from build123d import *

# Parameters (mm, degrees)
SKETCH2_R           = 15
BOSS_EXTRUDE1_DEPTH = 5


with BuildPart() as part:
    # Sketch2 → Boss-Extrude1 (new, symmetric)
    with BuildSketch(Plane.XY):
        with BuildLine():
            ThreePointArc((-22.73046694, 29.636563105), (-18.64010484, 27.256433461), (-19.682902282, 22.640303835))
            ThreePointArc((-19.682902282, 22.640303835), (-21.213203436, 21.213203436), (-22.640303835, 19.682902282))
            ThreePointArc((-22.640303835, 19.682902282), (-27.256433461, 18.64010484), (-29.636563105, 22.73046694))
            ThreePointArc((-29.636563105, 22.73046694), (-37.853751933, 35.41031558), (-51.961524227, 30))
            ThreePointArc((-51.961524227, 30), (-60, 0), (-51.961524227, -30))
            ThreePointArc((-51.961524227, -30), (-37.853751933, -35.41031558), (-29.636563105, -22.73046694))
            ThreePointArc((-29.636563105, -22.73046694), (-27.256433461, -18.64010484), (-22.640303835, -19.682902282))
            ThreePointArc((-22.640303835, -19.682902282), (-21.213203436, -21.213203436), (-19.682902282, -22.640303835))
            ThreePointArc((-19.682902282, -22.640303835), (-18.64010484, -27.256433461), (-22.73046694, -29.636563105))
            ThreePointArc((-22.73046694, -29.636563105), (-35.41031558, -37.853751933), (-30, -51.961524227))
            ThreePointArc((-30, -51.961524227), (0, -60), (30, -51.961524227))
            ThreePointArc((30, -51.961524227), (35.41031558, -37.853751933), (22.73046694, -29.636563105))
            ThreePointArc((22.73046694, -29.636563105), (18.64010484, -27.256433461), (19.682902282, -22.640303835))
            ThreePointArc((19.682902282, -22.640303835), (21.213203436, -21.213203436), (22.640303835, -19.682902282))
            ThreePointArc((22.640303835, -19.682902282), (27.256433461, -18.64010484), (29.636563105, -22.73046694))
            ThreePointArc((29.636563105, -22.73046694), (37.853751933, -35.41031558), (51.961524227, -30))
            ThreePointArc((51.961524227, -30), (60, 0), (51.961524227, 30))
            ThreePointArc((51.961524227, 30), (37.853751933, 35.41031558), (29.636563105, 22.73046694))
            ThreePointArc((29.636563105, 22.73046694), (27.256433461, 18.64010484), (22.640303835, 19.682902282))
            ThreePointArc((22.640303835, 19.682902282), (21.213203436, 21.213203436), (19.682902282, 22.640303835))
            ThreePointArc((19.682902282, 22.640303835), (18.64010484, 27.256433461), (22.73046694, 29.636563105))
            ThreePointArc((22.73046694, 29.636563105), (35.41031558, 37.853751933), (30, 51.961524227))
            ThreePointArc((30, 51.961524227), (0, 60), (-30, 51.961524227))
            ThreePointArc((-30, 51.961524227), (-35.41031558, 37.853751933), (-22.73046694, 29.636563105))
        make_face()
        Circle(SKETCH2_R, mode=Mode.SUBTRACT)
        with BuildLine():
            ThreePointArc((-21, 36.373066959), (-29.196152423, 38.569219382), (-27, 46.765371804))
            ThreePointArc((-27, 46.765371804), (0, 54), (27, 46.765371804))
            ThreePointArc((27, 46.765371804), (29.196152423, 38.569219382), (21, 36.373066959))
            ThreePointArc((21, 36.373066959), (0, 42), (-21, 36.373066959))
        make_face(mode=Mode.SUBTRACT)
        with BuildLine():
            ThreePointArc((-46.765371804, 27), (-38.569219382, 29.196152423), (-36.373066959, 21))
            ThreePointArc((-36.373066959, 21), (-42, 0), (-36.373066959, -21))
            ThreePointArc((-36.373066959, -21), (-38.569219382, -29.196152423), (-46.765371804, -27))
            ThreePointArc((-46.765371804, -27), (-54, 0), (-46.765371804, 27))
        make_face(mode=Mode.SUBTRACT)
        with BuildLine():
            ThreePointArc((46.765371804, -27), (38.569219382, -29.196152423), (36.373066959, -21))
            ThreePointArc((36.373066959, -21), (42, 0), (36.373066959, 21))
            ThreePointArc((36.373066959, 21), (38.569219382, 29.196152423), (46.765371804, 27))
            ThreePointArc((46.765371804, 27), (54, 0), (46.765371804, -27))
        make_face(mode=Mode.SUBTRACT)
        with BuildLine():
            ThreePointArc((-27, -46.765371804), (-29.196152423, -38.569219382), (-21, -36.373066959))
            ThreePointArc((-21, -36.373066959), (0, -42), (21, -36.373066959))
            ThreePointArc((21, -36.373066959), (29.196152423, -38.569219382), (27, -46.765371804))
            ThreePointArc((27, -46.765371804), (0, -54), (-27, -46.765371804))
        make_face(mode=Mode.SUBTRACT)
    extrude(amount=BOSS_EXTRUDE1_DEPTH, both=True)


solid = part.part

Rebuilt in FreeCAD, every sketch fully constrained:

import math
import FreeCAD as App
import Part
import Sketcher

doc = App.newDocument("Part")
body = doc.addObject("PartDesign::Body", "Body")

# Sketch on XY plane
sketch1 = body.newObject("Sketcher::SketchObject", "Sketch")
sketch1.AttachmentSupport = (doc.getObject("XY_Plane"), [""])
sketch1.MapMode = "FlatFace"
sketch1.addGeometry(Part.ArcOfCircle(Part.Circle(App.Vector(-22.307289, 25.659011, 0), App.Vector(0, 0, 1), 4), math.radians(-48.997137), math.radians(96.072939)), False)
sketch1.addGeometry(Part.ArcOfCircle(Part.Circle(App.Vector(0, 0, 0), App.Vector(0, 0, 1), 30), math.radians(131.002863), math.radians(138.997137)), False)
sketch1.addGeometry(Part.ArcOfCircle(Part.Circle(App.Vector(-25.659011, 22.307289, 0), App.Vector(0, 0, 1), 4), math.radians(173.927061), math.radians(318.997137)), False)
sketch1.addGeometry(Part.ArcOfCircle(Part.Circle(App.Vector(-41.569219, 24, 0), App.Vector(0, 0, 1), 12), math.radians(-6.072939), math.radians(150)), False)
sketch1.addGeometry(Part.ArcOfCircle(Part.Circle(App.Vector(0, 0, 0), App.Vector(0, 0, 1), 60), math.radians(150), math.radians(210)), False)
sketch1.addGeometry(Part.ArcOfCircle(Part.Circle(App.Vector(-41.569219, -24, 0), App.Vector(0, 0, 1), 12), math.radians(-150), math.radians(6.072939)), False)
sketch1.addGeometry(Part.ArcOfCircle(Part.Circle(App.Vector(-25.659011, -22.307289, 0), App.Vector(0, 0, 1), 4), math.radians(41.002863), math.radians(186.072939)), False)
sketch1.addGeometry(Part.ArcOfCircle(Part.Circle(App.Vector(0, 0, 0), App.Vector(0, 0, 1), 30), math.radians(-138.997137), math.radians(-131.002863)), False)
sketch1.addGeometry(Part.ArcOfCircle(Part.Circle(App.Vector(-22.307289, -25.659011, 0), App.Vector(0, 0, 1), 4), math.radians(-96.072939), math.radians(48.997137)), False)
sketch1.addGeometry(Part.ArcOfCircle(Part.Circle(App.Vector(-24, -41.569219, 0), App.Vector(0, 0, 1), 12), math.radians(83.927061), math.radians(240)), False)
sketch1.addGeometry(Part.ArcOfCircle(Part.Circle(App.Vector(0, 0, 0), App.Vector(0, 0, 1), 60), math.radians(-120), math.radians(-60)), False)
sketch1.addGeometry(Part.ArcOfCircle(Part.Circle(App.Vector(24, -41.569219, 0), App.Vector(0, 0, 1), 12), math.radians(-60), math.radians(96.072939)), False)
sketch1.addGeometry(Part.ArcOfCircle(Part.Circle(App.Vector(22.307289, -25.659011, 0), App.Vector(0, 0, 1), 4), math.radians(131.002863), math.radians(276.072939)), False)
sketch1.addGeometry(Part.ArcOfCircle(Part.Circle(App.Vector(0, 0, 0), App.Vector(0, 0, 1), 30), math.radians(-48.997137), math.radians(-41.002863)), False)
sketch1.addGeometry(Part.ArcOfCircle(Part.Circle(App.Vector(25.659011, -22.307289, 0), App.Vector(0, 0, 1), 4), math.radians(-6.072939), math.radians(138.997137)), False)
sketch1.addGeometry(Part.ArcOfCircle(Part.Circle(App.Vector(41.569219, -24, 0), App.Vector(0, 0, 1), 12), math.radians(173.927061), math.radians(330)), False)
sketch1.addGeometry(Part.ArcOfCircle(Part.Circle(App.Vector(0, 0, 0), App.Vector(0, 0, 1), 60), math.radians(-30), math.radians(30)), False)
sketch1.addGeometry(Part.ArcOfCircle(Part.Circle(App.Vector(41.569219, 24, 0), App.Vector(0, 0, 1), 12), math.radians(30), math.radians(186.072939)), False)
sketch1.addGeometry(Part.ArcOfCircle(Part.Circle(App.Vector(25.659011, 22.307289, 0), App.Vector(0, 0, 1), 4), math.radians(-138.997137), math.radians(6.072939)), False)
sketch1.addGeometry(Part.ArcOfCircle(Part.Circle(App.Vector(0, 0, 0), App.Vector(0, 0, 1), 30), math.radians(41.002863), math.radians(48.997137)), False)
sketch1.addGeometry(Part.ArcOfCircle(Part.Circle(App.Vector(22.307289, 25.659011, 0), App.Vector(0, 0, 1), 4), math.radians(83.927061), math.radians(228.997137)), False)
sketch1.addGeometry(Part.ArcOfCircle(Part.Circle(App.Vector(24, 41.569219, 0), App.Vector(0, 0, 1), 12), math.radians(-96.072939), math.radians(60)), False)
sketch1.addGeometry(Part.ArcOfCircle(Part.Circle(App.Vector(0, 0, 0), App.Vector(0, 0, 1), 60), math.radians(60), math.radians(120)), False)
sketch1.addGeometry(Part.ArcOfCircle(Part.Circle(App.Vector(-24, 41.569219, 0), App.Vector(0, 0, 1), 12), math.radians(120), math.radians(276.072939)), False)
sketch1.addGeometry(Part.ArcOfCircle(Part.Circle(App.Vector(0, 0, 0), App.Vector(0, 0, 1), 54), math.radians(-120), math.radians(-60)), False)
sketch1.addGeometry(Part.ArcOfCircle(Part.Circle(App.Vector(-24, -41.569219, 0), App.Vector(0, 0, 1), 6), math.radians(60), math.radians(240)), False)
sketch1.addGeometry(Part.ArcOfCircle(Part.Circle(App.Vector(0, 0, 0), App.Vector(0, 0, 1), 42), math.radians(-120), math.radians(-60)), False)
sketch1.addGeometry(Part.ArcOfCircle(Part.Circle(App.Vector(24, -41.569219, 0), App.Vector(0, 0, 1), 6), math.radians(-60), math.radians(120)), False)
sketch1.addGeometry(Part.ArcOfCircle(Part.Circle(App.Vector(0, 0, 0), App.Vector(0, 0, 1), 54), math.radians(150), math.radians(210)), False)
sketch1.addGeometry(Part.ArcOfCircle(Part.Circle(App.Vector(-41.569219, 24, 0), App.Vector(0, 0, 1), 6), math.radians(-30), math.radians(150)), False)
sketch1.addGeometry(Part.ArcOfCircle(Part.Circle(App.Vector(0, 0, 0), App.Vector(0, 0, 1), 42), math.radians(150), math.radians(210)), False)
sketch1.addGeometry(Part.ArcOfCircle(Part.Circle(App.Vector(-41.569219, -24, 0), App.Vector(0, 0, 1), 6), math.radians(-150), math.radians(30)), False)
sketch1.addGeometry(Part.Circle(App.Vector(0, 0, 0), App.Vector(0, 0, 1), 15), False)
sketch1.addGeometry(Part.ArcOfCircle(Part.Circle(App.Vector(0, 0, 0), App.Vector(0, 0, 1), 54), math.radians(-30), math.radians(30)), False)
sketch1.addGeometry(Part.ArcOfCircle(Part.Circle(App.Vector(41.569219, -24, 0), App.Vector(0, 0, 1), 6), math.radians(150), math.radians(330)), False)
sketch1.addGeometry(Part.ArcOfCircle(Part.Circle(App.Vector(0, 0, 0), App.Vector(0, 0, 1), 42), math.radians(-30), math.radians(30)), False)
sketch1.addGeometry(Part.ArcOfCircle(Part.Circle(App.Vector(41.569219, 24, 0), App.Vector(0, 0, 1), 6), math.radians(30), math.radians(210)), False)
sketch1.addGeometry(Part.ArcOfCircle(Part.Circle(App.Vector(0, 0, 0), App.Vector(0, 0, 1), 42), math.radians(60), math.radians(120)), False)
sketch1.addGeometry(Part.ArcOfCircle(Part.Circle(App.Vector(-24, 41.569219, 0), App.Vector(0, 0, 1), 6), math.radians(120), math.radians(300)), False)
sketch1.addGeometry(Part.ArcOfCircle(Part.Circle(App.Vector(0, 0, 0), App.Vector(0, 0, 1), 54), math.radians(60), math.radians(120)), False)
sketch1.addGeometry(Part.ArcOfCircle(Part.Circle(App.Vector(24, 41.569219, 0), App.Vector(0, 0, 1), 6), math.radians(-120), math.radians(60)), False)
sketch1.addConstraint(Sketcher.Constraint("Tangent", 0, 1, 1, 1))
sketch1.addConstraint(Sketcher.Constraint("Tangent", 1, 2, 2, 2))
sketch1.addConstraint(Sketcher.Constraint("Tangent", 2, 1, 3, 1))
sketch1.addConstraint(Sketcher.Constraint("Tangent", 3, 2, 4, 1))
sketch1.addConstraint(Sketcher.Constraint("Tangent", 4, 2, 5, 1))
sketch1.addConstraint(Sketcher.Constraint("Tangent", 5, 2, 6, 2))
sketch1.addConstraint(Sketcher.Constraint("Tangent", 6, 1, 7, 1))
sketch1.addConstraint(Sketcher.Constraint("Tangent", 7, 2, 8, 2))
sketch1.addConstraint(Sketcher.Constraint("Tangent", 8, 1, 9, 1))
sketch1.addConstraint(Sketcher.Constraint("Tangent", 9, 2, 10, 1))
sketch1.addConstraint(Sketcher.Constraint("Tangent", 10, 2, 11, 1))
sketch1.addConstraint(Sketcher.Constraint("Tangent", 11, 2, 12, 2))
sketch1.addConstraint(Sketcher.Constraint("Tangent", 12, 1, 13, 1))
sketch1.addConstraint(Sketcher.Constraint("Tangent", 13, 2, 14, 2))
sketch1.addConstraint(Sketcher.Constraint("Tangent", 14, 1, 15, 1))
sketch1.addConstraint(Sketcher.Constraint("Tangent", 15, 2, 16, 1))
sketch1.addConstraint(Sketcher.Constraint("Tangent", 16, 2, 17, 1))
sketch1.addConstraint(Sketcher.Constraint("Tangent", 17, 2, 18, 2))
sketch1.addConstraint(Sketcher.Constraint("Tangent", 18, 1, 19, 1))
sketch1.addConstraint(Sketcher.Constraint("Tangent", 19, 2, 20, 2))
sketch1.addConstraint(Sketcher.Constraint("Tangent", 20, 1, 21, 1))
sketch1.addConstraint(Sketcher.Constraint("Tangent", 21, 2, 22, 1))
sketch1.addConstraint(Sketcher.Constraint("Tangent", 22, 2, 23, 1))
sketch1.addConstraint(Sketcher.Constraint("Tangent", 23, 2, 0, 2))
sketch1.addConstraint(Sketcher.Constraint("Tangent", 24, 1, 25, 2))
sketch1.addConstraint(Sketcher.Constraint("Tangent", 25, 1, 26, 1))
sketch1.addConstraint(Sketcher.Constraint("Tangent", 26, 2, 27, 2))
sketch1.addConstraint(Sketcher.Constraint("Tangent", 27, 1, 24, 2))
sketch1.addConstraint(Sketcher.Constraint("Tangent", 28, 1, 29, 2))
sketch1.addConstraint(Sketcher.Constraint("Tangent", 29, 1, 30, 1))
sketch1.addConstraint(Sketcher.Constraint("Tangent", 30, 2, 31, 2))
sketch1.addConstraint(Sketcher.Constraint("Tangent", 31, 1, 28, 2))
sketch1.addConstraint(Sketcher.Constraint("Tangent", 33, 1, 34, 2))
sketch1.addConstraint(Sketcher.Constraint("Tangent", 34, 1, 35, 1))
sketch1.addConstraint(Sketcher.Constraint("Tangent", 35, 2, 36, 2))
sketch1.addConstraint(Sketcher.Constraint("Tangent", 36, 1, 33, 2))
sketch1.addConstraint(Sketcher.Constraint("Tangent", 37, 2, 38, 2))
sketch1.addConstraint(Sketcher.Constraint("Tangent", 38, 1, 39, 2))
sketch1.addConstraint(Sketcher.Constraint("Tangent", 39, 1, 40, 2))
sketch1.addConstraint(Sketcher.Constraint("Tangent", 40, 1, 37, 1))
sketch1.addConstraint(Sketcher.Constraint("Coincident", 1, 3, -1, 1))
sketch1.addConstraint(Sketcher.Constraint("Coincident", 4, 3, -1, 1))
sketch1.addConstraint(Sketcher.Constraint("Coincident", 7, 3, -1, 1))
sketch1.addConstraint(Sketcher.Constraint("Coincident", 10, 3, -1, 1))
sketch1.addConstraint(Sketcher.Constraint("Coincident", 13, 3, -1, 1))
sketch1.addConstraint(Sketcher.Constraint("Coincident", 16, 3, -1, 1))
sketch1.addConstraint(Sketcher.Constraint("Coincident", 19, 3, -1, 1))
sketch1.addConstraint(Sketcher.Constraint("Coincident", 22, 3, -1, 1))
sketch1.addConstraint(Sketcher.Constraint("Coincident", 24, 3, -1, 1))
sketch1.addConstraint(Sketcher.Constraint("Coincident", 26, 3, -1, 1))
sketch1.addConstraint(Sketcher.Constraint("Coincident", 28, 3, -1, 1))
sketch1.addConstraint(Sketcher.Constraint("Coincident", 30, 3, -1, 1))
sketch1.addConstraint(Sketcher.Constraint("Coincident", 32, 3, -1, 1))
sketch1.addConstraint(Sketcher.Constraint("Coincident", 33, 3, -1, 1))
sketch1.addConstraint(Sketcher.Constraint("Coincident", 35, 3, -1, 1))
sketch1.addConstraint(Sketcher.Constraint("Coincident", 37, 3, -1, 1))
sketch1.addConstraint(Sketcher.Constraint("Coincident", 39, 3, -1, 1))
sketch1.addConstraint(Sketcher.Constraint("Coincident", 25, 3, 9, 3))
sketch1.addConstraint(Sketcher.Constraint("Coincident", 27, 3, 11, 3))
sketch1.addConstraint(Sketcher.Constraint("Coincident", 29, 3, 3, 3))
sketch1.addConstraint(Sketcher.Constraint("Coincident", 31, 3, 5, 3))
sketch1.addConstraint(Sketcher.Constraint("Coincident", 34, 3, 15, 3))
sketch1.addConstraint(Sketcher.Constraint("Coincident", 36, 3, 17, 3))
sketch1.addConstraint(Sketcher.Constraint("Coincident", 38, 3, 23, 3))
sketch1.addConstraint(Sketcher.Constraint("Coincident", 40, 3, 21, 3))
sketch1.addConstraint(Sketcher.Constraint("Equal", 0, 2))
sketch1.addConstraint(Sketcher.Constraint("Equal", 2, 6))
sketch1.addConstraint(Sketcher.Constraint("Equal", 1, 7))
sketch1.addConstraint(Sketcher.Constraint("Equal", 6, 8))
sketch1.addConstraint(Sketcher.Constraint("Equal", 5, 9))
sketch1.addConstraint(Sketcher.Constraint("Equal", 4, 10))
sketch1.addConstraint(Sketcher.Constraint("Equal", 8, 12))
sketch1.addConstraint(Sketcher.Constraint("Equal", 7, 13))
sketch1.addConstraint(Sketcher.Constraint("Equal", 12, 14))
sketch1.addConstraint(Sketcher.Constraint("Equal", 11, 15))
sketch1.addConstraint(Sketcher.Constraint("Equal", 10, 16))
sketch1.addConstraint(Sketcher.Constraint("Equal", 14, 18))
sketch1.addConstraint(Sketcher.Constraint("Equal", 13, 19))
sketch1.addConstraint(Sketcher.Constraint("Equal", 18, 20))
sketch1.addConstraint(Sketcher.Constraint("Equal", 17, 21))
sketch1.addConstraint(Sketcher.Constraint("Equal", 16, 22))
sketch1.addConstraint(Sketcher.Constraint("Equal", 24, 28))
sketch1.addConstraint(Sketcher.Constraint("Equal", 28, 33))
sketch1.addConstraint(Sketcher.Constraint("Equal", 35, 37))
sketch1.addConstraint(Sketcher.Constraint("Horizontal", 9, 3, 11, 3))
sketch1.addConstraint(Sketcher.Constraint("Horizontal", 6, 3, 14, 3))
sketch1.addConstraint(Sketcher.Constraint("Horizontal", 3, 3, 17, 3))
sketch1.addConstraint(Sketcher.Constraint("Horizontal", 0, 3, 20, 3))
sketch1.addConstraint(Sketcher.Constraint("Vertical", 3, 3, 5, 3))
sketch1.addConstraint(Sketcher.Constraint("Vertical", 0, 3, 8, 3))
sketch1.addConstraint(Sketcher.Constraint("Diameter", 32, 30.0))
sketch1.addConstraint(Sketcher.Constraint("Radius", 0, 4.0))
sketch1.addConstraint(Sketcher.Constraint("Radius", 1, 30.0))
sketch1.addConstraint(Sketcher.Constraint("Radius", 3, 12.0))
sketch1.addConstraint(Sketcher.Constraint("Radius", 4, 60.0))
sketch1.addConstraint(Sketcher.Constraint("Radius", 24, 54.0))
sketch1.addConstraint(Sketcher.Constraint("DistanceY", -1, 1, 3, 3, 24.0))
sketch1.addConstraint(Sketcher.Constraint("DistanceX", 9, 3, -1, 1, 24.0))
pad1 = body.newObject("PartDesign::Pad", "Pad")
pad1.Profile = sketch1
pad1.Length = 10
pad1.Midplane = True

doc.recompute()
